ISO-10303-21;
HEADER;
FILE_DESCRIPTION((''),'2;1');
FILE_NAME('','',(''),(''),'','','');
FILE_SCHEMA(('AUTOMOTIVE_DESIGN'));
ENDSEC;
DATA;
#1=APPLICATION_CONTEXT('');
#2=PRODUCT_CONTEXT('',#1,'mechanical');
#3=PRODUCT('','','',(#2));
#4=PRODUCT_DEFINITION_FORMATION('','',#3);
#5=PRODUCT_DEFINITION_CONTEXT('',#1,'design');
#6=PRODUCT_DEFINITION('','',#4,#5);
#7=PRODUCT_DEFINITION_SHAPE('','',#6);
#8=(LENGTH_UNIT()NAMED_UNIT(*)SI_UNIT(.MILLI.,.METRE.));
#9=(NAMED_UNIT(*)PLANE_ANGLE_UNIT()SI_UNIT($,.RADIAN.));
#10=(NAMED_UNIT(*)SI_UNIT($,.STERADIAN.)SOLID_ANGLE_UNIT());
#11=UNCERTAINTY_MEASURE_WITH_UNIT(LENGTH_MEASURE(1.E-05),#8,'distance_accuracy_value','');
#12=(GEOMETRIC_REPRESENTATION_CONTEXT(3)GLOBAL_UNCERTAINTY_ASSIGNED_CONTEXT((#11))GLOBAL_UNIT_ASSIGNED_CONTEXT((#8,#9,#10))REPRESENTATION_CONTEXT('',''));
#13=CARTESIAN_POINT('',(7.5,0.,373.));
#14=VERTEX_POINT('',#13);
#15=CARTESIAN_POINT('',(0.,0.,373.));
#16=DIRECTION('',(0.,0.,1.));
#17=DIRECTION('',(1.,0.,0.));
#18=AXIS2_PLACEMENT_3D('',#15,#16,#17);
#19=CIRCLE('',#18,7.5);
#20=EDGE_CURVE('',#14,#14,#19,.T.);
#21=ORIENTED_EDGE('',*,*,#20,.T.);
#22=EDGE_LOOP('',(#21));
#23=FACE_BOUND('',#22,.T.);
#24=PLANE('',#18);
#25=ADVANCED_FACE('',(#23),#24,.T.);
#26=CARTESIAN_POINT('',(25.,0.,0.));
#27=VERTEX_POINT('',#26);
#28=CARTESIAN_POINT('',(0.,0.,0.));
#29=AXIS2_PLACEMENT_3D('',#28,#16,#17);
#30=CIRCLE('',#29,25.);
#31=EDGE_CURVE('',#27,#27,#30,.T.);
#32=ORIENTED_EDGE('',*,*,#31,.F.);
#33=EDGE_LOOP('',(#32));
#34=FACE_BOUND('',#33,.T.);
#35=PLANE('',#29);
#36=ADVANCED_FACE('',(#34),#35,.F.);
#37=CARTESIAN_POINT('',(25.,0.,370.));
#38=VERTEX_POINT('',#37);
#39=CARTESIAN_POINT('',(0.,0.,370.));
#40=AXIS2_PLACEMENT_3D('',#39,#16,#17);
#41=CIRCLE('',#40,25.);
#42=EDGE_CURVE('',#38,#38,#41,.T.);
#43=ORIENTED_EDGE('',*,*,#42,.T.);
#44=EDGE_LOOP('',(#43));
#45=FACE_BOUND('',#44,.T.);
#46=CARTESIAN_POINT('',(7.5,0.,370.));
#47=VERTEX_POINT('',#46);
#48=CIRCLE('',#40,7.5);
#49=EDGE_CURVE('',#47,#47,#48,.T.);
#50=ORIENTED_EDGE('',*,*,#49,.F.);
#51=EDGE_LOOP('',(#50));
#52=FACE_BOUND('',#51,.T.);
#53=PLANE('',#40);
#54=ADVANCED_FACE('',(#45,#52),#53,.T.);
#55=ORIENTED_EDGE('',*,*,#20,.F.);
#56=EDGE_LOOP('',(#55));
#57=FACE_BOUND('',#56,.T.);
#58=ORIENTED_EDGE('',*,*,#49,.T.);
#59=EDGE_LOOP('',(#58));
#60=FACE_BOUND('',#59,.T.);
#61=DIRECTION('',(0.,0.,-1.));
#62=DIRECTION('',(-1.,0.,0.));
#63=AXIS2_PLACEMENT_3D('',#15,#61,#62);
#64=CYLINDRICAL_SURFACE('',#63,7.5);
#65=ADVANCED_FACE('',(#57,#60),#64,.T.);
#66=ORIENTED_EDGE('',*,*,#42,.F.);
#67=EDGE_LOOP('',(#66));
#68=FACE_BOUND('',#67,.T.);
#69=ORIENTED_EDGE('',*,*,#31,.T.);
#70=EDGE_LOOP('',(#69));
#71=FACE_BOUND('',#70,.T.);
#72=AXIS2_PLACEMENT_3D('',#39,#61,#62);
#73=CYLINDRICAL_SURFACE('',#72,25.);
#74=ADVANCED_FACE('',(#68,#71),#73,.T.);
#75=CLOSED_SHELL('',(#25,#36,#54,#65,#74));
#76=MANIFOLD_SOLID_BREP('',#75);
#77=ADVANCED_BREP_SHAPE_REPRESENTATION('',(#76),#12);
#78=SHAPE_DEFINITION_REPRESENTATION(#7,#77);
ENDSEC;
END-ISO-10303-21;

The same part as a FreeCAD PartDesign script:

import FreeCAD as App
import Part
import Sketcher

doc = App.newDocument("Part")
params = doc.addObject("Spreadsheet::Sheet", "Params")
for row, (alias, value) in enumerate([
    ("sketch1_diameter", "50 mm"),
    ("pad1_length", "370 mm"),
    ("sketch2_diameter", "15 mm"),
    ("pad2_length", "3 mm"),
], start=1):
    params.set(f"A{row}", alias)
    params.set(f"B{row}", "=" + value)
    params.setAlias(f"B{row}", alias)

body = doc.addObject("PartDesign::Body", "Body")

sketch1 = body.newObject("Sketcher::SketchObject", "Sketch")
sketch1.AttachmentSupport = (doc.getObject("XY_Plane"), [""])
sketch1.MapMode = "FlatFace"
sketch1.addGeometry(Part.Circle(App.Vector(0, 0, 0), App.Vector(0, 0, 1), 25), False)
sketch1.addConstraint(Sketcher.Constraint("Coincident", 0, 3, -1, 1))
sketch1.addConstraint(Sketcher.Constraint("Diameter", 0, 50.0))
sketch1.setExpression("Constraints[1]", "Params.sketch1_diameter")
pad1 = body.newObject("PartDesign::Pad", "Pad")
pad1.Profile = sketch1
pad1.setExpression("Length", "Params.pad1_length")

sketch2 = body.newObject("Sketcher::SketchObject", "Sketch001")
sketch2.AttachmentSupport = (doc.getObject("XY_Plane"), [""])
sketch2.MapMode = "FlatFace"
sketch2.AttachmentOffset = App.Placement(App.Vector(0, 0, 370), App.Rotation())
sketch2.addGeometry(Part.Circle(App.Vector(0, 0, 0), App.Vector(0, 0, 1), 7.5), False)
sketch2.addConstraint(Sketcher.Constraint("Coincident", 0, 3, -1, 1))
sketch2.addConstraint(Sketcher.Constraint("Diameter", 0, 15.0))
sketch2.setExpression("Constraints[1]", "Params.sketch2_diameter")
pad2 = body.newObject("PartDesign::Pad", "Pad001")
pad2.Profile = sketch2
pad2.setExpression("Length", "Params.pad2_length")

doc.recompute()
